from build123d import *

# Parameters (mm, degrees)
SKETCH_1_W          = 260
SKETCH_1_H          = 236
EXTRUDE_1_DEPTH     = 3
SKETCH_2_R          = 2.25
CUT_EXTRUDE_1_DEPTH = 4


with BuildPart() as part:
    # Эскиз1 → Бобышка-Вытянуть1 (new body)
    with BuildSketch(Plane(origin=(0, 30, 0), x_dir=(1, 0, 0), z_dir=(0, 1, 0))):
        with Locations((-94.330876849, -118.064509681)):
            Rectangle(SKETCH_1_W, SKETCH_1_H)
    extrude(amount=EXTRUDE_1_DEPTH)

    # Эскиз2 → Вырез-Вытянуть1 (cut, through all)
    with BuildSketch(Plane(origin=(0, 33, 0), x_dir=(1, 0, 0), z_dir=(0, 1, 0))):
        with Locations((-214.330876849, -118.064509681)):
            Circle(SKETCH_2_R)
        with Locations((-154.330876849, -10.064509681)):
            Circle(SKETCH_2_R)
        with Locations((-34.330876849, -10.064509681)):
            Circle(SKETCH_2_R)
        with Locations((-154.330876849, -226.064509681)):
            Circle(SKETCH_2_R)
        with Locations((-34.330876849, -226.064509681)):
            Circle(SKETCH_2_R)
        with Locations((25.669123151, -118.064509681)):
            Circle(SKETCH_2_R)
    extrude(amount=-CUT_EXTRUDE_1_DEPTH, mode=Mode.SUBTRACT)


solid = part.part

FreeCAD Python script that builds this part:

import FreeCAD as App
import Part
import Sketcher


def add_polygon(sketch, points):
    """Adds a closed chain of lines whose ends are joined by coincident constraints."""
    first, n = sketch.GeometryCount, len(points)
    for a, b in zip(points, points[1:] + points[:1]):
        sketch.addGeometry(Part.LineSegment(App.Vector(*a, 0), App.Vector(*b, 0)), False)
    for i in range(n):
        sketch.addConstraint(Sketcher.Constraint("Coincident", first + i, 2, first + (i + 1) % n, 1))

doc = App.newDocument("Part")
body = doc.addObject("PartDesign::Body", "Body")

# Sketch on XZ plane
sketch1 = doc.addObject("Sketcher::SketchObject", "Sketch")
body.addObject(sketch1)
sketch1.AttachmentSupport = (doc.XZ_Plane, [""])
sketch1.MapMode = "FlatFace"
sketch1.AttachmentOffset = App.Placement(App.Vector(0, 0, -30), App.Rotation())
add_polygon(sketch1, [(-224, 0), (-224, 236), (36, 236), (36, 0)])  # lines 0-3
sketch1.addConstraint([
    Sketcher.Constraint("Vertical", 0),
    Sketcher.Constraint("Horizontal", 1),
    Sketcher.Constraint("Vertical", 2),
    Sketcher.Constraint("Horizontal", 3),
    Sketcher.Constraint("DistanceX", 1, 1, 1, 2, 260.0),
    Sketcher.Constraint("DistanceY", 0, 1, 0, 2, 236.0),
    Sketcher.Constraint("DistanceY", -1, 1, 0, 2, 236.06451),
    Sketcher.Constraint("DistanceX", 0, 2, -1, 1, 224.330877),
])
pad1 = doc.addObject("PartDesign::Pad", "Pad")
body.addObject(pad1)
pad1.Profile = sketch1
pad1.Length = 3
pad1.Reversed = True

# Sketch on XZ plane
sketch2 = doc.addObject("Sketcher::SketchObject", "Sketch001")
body.addObject(sketch2)
sketch2.AttachmentSupport = (doc.XZ_Plane, [""])
sketch2.MapMode = "FlatFace"
sketch2.AttachmentOffset = App.Placement(App.Vector(0, 0, -33), App.Rotation())
sketch2.addGeometry([
    Part.Circle(App.Vector(-214.3, 118.1, 0), App.Vector(0, 0, 1), 2.2),  # 0
    Part.Circle(App.Vector(-154.3, 10.1, 0), App.Vector(0, 0, 1), 2.2),  # 1
    Part.Circle(App.Vector(-34.3, 10.1, 0), App.Vector(0, 0, 1), 2.2),  # 2
    Part.Circle(App.Vector(-154.3, 226.1, 0), App.Vector(0, 0, 1), 2.2),  # 3
    Part.Circle(App.Vector(-34.3, 226.1, 0), App.Vector(0, 0, 1), 2.2),  # 4
    Part.Circle(App.Vector(25.7, 118.1, 0), App.Vector(0, 0, 1), 2.2),  # 5
], False)
sketch2.addConstraint([
    Sketcher.Constraint("Equal", 0, 1),
    Sketcher.Constraint("Equal", 1, 2),
    Sketcher.Constraint("Equal", 2, 3),
    Sketcher.Constraint("Equal", 3, 4),
    Sketcher.Constraint("Equal", 4, 5),
    Sketcher.Constraint("Horizontal", 1, 3, 2, 3),
    Sketcher.Constraint("Horizontal", 3, 3, 4, 3),
    Sketcher.Constraint("Horizontal", 0, 3, 5, 3),
    Sketcher.Constraint("Vertical", 1, 3, 3, 3),
    Sketcher.Constraint("Vertical", 2, 3, 4, 3),
    Sketcher.Constraint("Diameter", 0, 4.5),
    Sketcher.Constraint("DistanceX", 0, 3, 1, 3, 60.0),
    Sketcher.Constraint("DistanceY", 1, 3, 0, 3, 108.0),
    Sketcher.Constraint("DistanceX", 1, 3, 2, 3, 120.0),
    Sketcher.Constraint("DistanceY", 0, 3, 3, 3, 108.0),
    Sketcher.Constraint("DistanceX", 2, 3, 5, 3, 60.0),
    Sketcher.Constraint("DistanceY", -1, 1, 0, 3, 118.06451),
    Sketcher.Constraint("DistanceX", 0, 3, -1, 1, 214.330877),
])
pocket1 = doc.addObject("PartDesign::Pocket", "Pocket")
body.addObject(pocket1)
pocket1.Profile = sketch2
pocket1.Type = "ThroughAll"
pocket1.Reversed = True

doc.recompute()
